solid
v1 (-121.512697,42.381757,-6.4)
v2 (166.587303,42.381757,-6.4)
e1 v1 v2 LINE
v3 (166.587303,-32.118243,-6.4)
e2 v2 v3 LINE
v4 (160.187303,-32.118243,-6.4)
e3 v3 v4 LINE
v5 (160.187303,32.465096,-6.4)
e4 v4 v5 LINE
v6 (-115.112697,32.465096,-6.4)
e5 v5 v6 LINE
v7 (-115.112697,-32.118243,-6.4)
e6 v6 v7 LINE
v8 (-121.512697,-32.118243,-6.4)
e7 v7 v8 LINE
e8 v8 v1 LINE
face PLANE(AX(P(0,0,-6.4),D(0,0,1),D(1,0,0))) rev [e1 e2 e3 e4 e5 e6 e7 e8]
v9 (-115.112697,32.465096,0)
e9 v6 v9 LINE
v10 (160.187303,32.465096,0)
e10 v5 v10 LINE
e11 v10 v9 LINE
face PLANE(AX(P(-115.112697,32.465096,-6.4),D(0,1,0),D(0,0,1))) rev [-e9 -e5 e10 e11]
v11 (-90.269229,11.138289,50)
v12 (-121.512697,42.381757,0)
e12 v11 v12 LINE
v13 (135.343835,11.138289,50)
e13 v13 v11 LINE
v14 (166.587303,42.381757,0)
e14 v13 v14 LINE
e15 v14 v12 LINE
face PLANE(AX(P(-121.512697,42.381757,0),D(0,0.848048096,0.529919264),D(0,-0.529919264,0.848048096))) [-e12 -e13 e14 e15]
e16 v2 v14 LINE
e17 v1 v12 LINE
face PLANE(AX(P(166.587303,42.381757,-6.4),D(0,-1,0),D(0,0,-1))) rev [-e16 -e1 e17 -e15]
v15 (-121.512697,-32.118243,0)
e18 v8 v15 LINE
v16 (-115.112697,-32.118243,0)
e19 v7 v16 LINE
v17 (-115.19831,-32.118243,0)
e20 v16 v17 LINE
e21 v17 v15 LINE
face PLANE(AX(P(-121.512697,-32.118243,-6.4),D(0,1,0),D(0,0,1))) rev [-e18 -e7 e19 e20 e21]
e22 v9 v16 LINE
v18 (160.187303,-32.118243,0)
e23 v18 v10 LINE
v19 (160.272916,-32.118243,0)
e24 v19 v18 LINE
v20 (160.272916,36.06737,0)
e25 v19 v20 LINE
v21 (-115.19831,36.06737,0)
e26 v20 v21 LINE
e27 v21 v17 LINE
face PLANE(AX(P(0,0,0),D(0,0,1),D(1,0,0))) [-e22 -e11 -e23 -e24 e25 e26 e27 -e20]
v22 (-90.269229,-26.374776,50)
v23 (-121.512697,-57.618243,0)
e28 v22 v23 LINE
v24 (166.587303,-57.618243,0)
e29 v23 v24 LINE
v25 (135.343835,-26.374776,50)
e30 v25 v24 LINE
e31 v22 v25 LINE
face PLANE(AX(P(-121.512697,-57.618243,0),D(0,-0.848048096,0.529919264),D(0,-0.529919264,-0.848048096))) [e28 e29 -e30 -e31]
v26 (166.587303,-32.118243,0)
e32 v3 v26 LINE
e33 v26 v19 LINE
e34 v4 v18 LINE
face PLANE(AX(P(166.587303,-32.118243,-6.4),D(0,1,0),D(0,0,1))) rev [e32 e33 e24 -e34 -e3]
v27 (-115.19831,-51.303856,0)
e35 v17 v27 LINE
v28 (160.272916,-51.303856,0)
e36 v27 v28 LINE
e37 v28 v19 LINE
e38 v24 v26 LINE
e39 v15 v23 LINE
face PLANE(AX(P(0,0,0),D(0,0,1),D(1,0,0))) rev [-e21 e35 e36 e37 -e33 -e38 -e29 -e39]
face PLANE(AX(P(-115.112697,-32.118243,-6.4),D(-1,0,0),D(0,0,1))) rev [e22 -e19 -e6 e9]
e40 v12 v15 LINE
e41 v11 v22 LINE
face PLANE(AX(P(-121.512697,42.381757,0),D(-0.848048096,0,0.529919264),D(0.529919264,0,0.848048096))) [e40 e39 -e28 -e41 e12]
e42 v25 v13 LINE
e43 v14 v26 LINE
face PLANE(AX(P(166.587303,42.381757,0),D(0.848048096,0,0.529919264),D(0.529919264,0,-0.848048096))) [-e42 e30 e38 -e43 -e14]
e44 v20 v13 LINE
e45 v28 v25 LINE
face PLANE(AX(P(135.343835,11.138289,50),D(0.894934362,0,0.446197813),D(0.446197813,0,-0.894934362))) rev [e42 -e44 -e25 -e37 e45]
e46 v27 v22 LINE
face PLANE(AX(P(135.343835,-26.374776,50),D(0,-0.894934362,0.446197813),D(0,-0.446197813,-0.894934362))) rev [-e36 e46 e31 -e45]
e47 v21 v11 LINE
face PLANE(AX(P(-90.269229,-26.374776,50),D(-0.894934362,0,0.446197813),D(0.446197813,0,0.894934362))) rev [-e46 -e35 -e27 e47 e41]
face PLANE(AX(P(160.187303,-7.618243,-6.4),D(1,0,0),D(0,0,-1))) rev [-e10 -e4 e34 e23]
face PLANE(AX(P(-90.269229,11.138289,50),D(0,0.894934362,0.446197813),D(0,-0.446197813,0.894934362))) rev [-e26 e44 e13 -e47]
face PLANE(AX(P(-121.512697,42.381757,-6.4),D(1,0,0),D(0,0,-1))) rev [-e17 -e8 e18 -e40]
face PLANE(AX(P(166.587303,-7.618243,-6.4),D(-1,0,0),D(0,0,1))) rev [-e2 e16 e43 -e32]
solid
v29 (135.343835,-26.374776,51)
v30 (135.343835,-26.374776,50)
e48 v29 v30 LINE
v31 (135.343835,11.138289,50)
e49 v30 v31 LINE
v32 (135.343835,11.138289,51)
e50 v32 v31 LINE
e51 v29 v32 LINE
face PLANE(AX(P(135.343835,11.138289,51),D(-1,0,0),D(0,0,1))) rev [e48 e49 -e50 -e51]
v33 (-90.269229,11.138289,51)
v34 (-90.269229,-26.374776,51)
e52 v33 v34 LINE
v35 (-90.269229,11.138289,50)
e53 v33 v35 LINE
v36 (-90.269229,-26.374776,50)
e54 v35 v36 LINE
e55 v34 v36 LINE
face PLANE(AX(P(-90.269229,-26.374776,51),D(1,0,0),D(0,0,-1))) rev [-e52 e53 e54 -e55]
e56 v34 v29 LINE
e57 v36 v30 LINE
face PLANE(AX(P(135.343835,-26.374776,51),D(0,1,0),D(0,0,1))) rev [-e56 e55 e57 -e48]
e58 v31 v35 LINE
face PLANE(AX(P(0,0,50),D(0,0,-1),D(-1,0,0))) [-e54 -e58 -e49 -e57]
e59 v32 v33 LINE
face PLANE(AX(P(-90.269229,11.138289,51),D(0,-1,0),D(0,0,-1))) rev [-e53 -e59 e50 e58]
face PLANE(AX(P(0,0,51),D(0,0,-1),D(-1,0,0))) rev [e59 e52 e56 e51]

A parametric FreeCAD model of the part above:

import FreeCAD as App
import Part
import Sketcher

doc = App.newDocument("Part")
body = doc.addObject("PartDesign::Body", "Body")

# Sketch on XY plane
sketch1 = body.newObject("Sketcher::SketchObject", "Sketch")
sketch1.AttachmentSupport = (doc.getObject("XY_Plane"), [""])
sketch1.MapMode = "FlatFace"
sketch1.addGeometry(Part.LineSegment(App.Vector(-121.512697, 42.381757, 0), App.Vector(-121.512697, -57.618243, 0)), False)
sketch1.addGeometry(Part.LineSegment(App.Vector(-121.512697, -57.618243, 0), App.Vector(166.587303, -57.618243, 0)), False)
sketch1.addGeometry(Part.LineSegment(App.Vector(166.587303, -57.618243, 0), App.Vector(166.587303, 42.381757, 0)), False)
sketch1.addGeometry(Part.LineSegment(App.Vector(166.587303, 42.381757, 0), App.Vector(-121.512697, 42.381757, 0)), False)
sketch1.addConstraint(Sketcher.Constraint("Coincident", 0, 2, 1, 1))
sketch1.addConstraint(Sketcher.Constraint("Coincident", 1, 2, 2, 1))
sketch1.addConstraint(Sketcher.Constraint("Coincident", 2, 2, 3, 1))
sketch1.addConstraint(Sketcher.Constraint("Coincident", 3, 2, 0, 1))
sketch1.addConstraint(Sketcher.Constraint("Vertical", 0))
sketch1.addConstraint(Sketcher.Constraint("Horizontal", 1))
sketch1.addConstraint(Sketcher.Constraint("Vertical", 2))
sketch1.addConstraint(Sketcher.Constraint("Horizontal", 3))
sketch1.addConstraint(Sketcher.Constraint("DistanceY", 0, 2, 0, 1, 100.0))
sketch1.addConstraint(Sketcher.Constraint("DistanceX", 1, 1, 1, 2, 288.1))
sketch1.addConstraint(Sketcher.Constraint("DistanceX", 0, 2, -1, 1, 121.512697))
sketch1.addConstraint(Sketcher.Constraint("DistanceY", 0, 2, -1, 1, 57.618243))
pad1 = body.newObject("PartDesign::Pad", "Pad")
pad1.Profile = sketch1
pad1.Length = 50
pad1.TaperAngle = -32

# Sketch on XY plane
sketch2 = body.newObject("Sketcher::SketchObject", "Sketch001")
sketch2.AttachmentSupport = (doc.getObject("XY_Plane"), [""])
sketch2.MapMode = "FlatFace"
sketch2.AttachmentOffset = App.Placement(App.Vector(0, 0, 50), App.Rotation())
sketch2.addGeometry(Part.LineSegment(App.Vector(-90.269229, 11.138289, 0), App.Vector(-90.269229, -26.374776, 0)), False)
sketch2.addGeometry(Part.LineSegment(App.Vector(-90.269229, -26.374776, 0), App.Vector(135.343835, -26.374776, 0)), False)
sketch2.addGeometry(Part.LineSegment(App.Vector(135.343835, -26.374776, 0), App.Vector(135.343835, 11.138289, 0)), False)
sketch2.addGeometry(Part.LineSegment(App.Vector(135.343835, 11.138289, 0), App.Vector(-90.269229, 11.138289, 0)), False)
sketch2.addConstraint(Sketcher.Constraint("Coincident", 0, 2, 1, 1))
sketch2.addConstraint(Sketcher.Constraint("Coincident", 1, 2, 2, 1))
sketch2.addConstraint(Sketcher.Constraint("Coincident", 2, 2, 3, 1))
sketch2.addConstraint(Sketcher.Constraint("Coincident", 3, 2, 0, 1))
sketch2.addConstraint(Sketcher.Constraint("Vertical", 0))
sketch2.addConstraint(Sketcher.Constraint("Horizontal", 1))
sketch2.addConstraint(Sketcher.Constraint("Vertical", 2))
sketch2.addConstraint(Sketcher.Constraint("Horizontal", 3))
sketch2.addConstraint(Sketcher.Constraint("DistanceX", 1, 1, 1, 2, 225.613065))
sketch2.addConstraint(Sketcher.Constraint("DistanceY", 0, 2, 0, 1, 37.513065))
sketch2.addConstraint(Sketcher.Constraint("DistanceX", 0, 2, -1, 1, 90.269229))
sketch2.addConstraint(Sketcher.Constraint("DistanceY", -1, 1, 2, 2, 11.138289))
pocket1 = body.newObject("PartDesign::Pocket", "Pocket")
pocket1.Profile = sketch2
pocket1.Length = 50
pocket1.TaperAngle = 26.5

# Sketch on XY plane
sketch3 = body.newObject("Sketcher::SketchObject", "Sketch002")
sketch3.AttachmentSupport = (doc.getObject("XY_Plane"), [""])
sketch3.MapMode = "FlatFace"
sketch3.addGeometry(Part.LineSegment(App.Vector(-121.512697, 42.381757, 0), App.Vector(166.587303, 42.381757, 0)), False)
sketch3.addGeometry(Part.LineSegment(App.Vector(166.587303, 42.381757, 0), App.Vector(166.587303, -32.118243, 0)), False)
sketch3.addGeometry(Part.LineSegment(App.Vector(166.587303, -32.118243, 0), App.Vector(160.187303, -32.118243, 0)), False)
sketch3.addGeometry(Part.LineSegment(App.Vector(160.187303, -32.118243, 0), App.Vector(160.187303, 32.465096, 0)), False)
sketch3.addGeometry(Part.LineSegment(App.Vector(160.187303, 32.465096, 0), App.Vector(-115.112697, 32.465096, 0)), False)
sketch3.addGeometry(Part.LineSegment(App.Vector(-115.112697, 32.465096, 0), App.Vector(-115.112697, -32.118243, 0)), False)
sketch3.addGeometry(Part.LineSegment(App.Vector(-115.112697, -32.118243, 0), App.Vector(-121.512697, -32.118243, 0)), False)
sketch3.addGeometry(Part.LineSegment(App.Vector(-121.512697, -32.118243, 0), App.Vector(-121.512697, 42.381757, 0)), False)
sketch3.addConstraint(Sketcher.Constraint("Coincident", 0, 2, 1, 1))
sketch3.addConstraint(Sketcher.Constraint("Coincident", 1, 2, 2, 1))
sketch3.addConstraint(Sketcher.Constraint("Coincident", 2, 2, 3, 1))
sketch3.addConstraint(Sketcher.Constraint("Coincident", 3, 2, 4, 1))
sketch3.addConstraint(Sketcher.Constraint("Coincident", 4, 2, 5, 1))
sketch3.addConstraint(Sketcher.Constraint("Coincident", 5, 2, 6, 1))
sketch3.addConstraint(Sketcher.Constraint("Coincident", 6, 2, 7, 1))
sketch3.addConstraint(Sketcher.Constraint("Coincident", 7, 2, 0, 1))
sketch3.addConstraint(Sketcher.Constraint("Horizontal", 0))
sketch3.addConstraint(Sketcher.Constraint("Vertical", 1))
sketch3.addConstraint(Sketcher.Constraint("Horizontal", 2))
sketch3.addConstraint(Sketcher.Constraint("Vertical", 3))
sketch3.addConstraint(Sketcher.Constraint("Horizontal", 4))
sketch3.addConstraint(Sketcher.Constraint("Vertical", 5))
sketch3.addConstraint(Sketcher.Constraint("Horizontal", 6))
sketch3.addConstraint(Sketcher.Constraint("Vertical", 7))
sketch3.addConstraint(Sketcher.Constraint("Horizontal", 2, 2, 5, 2))
sketch3.addConstraint(Sketcher.Constraint("Equal", 2, 6))
sketch3.addConstraint(Sketcher.Constraint("DistanceX", 0, 1, 0, 2, 288.1))
sketch3.addConstraint(Sketcher.Constraint("DistanceX", 2, 2, 2, 1, 6.4))
sketch3.addConstraint(Sketcher.Constraint("DistanceY", 1, 2, 1, 1, 74.5))
sketch3.addConstraint(Sketcher.Constraint("DistanceY", 3, 1, 3, 2, 64.58334))
sketch3.addConstraint(Sketcher.Constraint("DistanceX", -1, 1, 0, 2, 166.587303))
sketch3.addConstraint(Sketcher.Constraint("DistanceY", -1, 1, 0, 2, 42.381757))
pad2 = body.newObject("PartDesign::Pad", "Pad001")
pad2.Profile = sketch3
pad2.Length = 6.4
pad2.Reversed = True
body2 = doc.addObject("PartDesign::Body", "Body001")

# Sketch on XY plane
sketch4 = body2.newObject("Sketcher::SketchObject", "Sketch003")
sketch4.AttachmentSupport = (doc.getObject("XY_Plane001"), [""])
sketch4.MapMode = "FlatFace"
sketch4.AttachmentOffset = App.Placement(App.Vector(0, 0, 50), App.Rotation())
sketch4.addGeometry(Part.LineSegment(App.Vector(-90.269229, 11.138289, 0), App.Vector(-90.269229, -26.374776, 0)), False)
sketch4.addGeometry(Part.LineSegment(App.Vector(-90.269229, -26.374776, 0), App.Vector(135.343835, -26.374776, 0)), False)
sketch4.addGeometry(Part.LineSegment(App.Vector(135.343835, -26.374776, 0), App.Vector(135.343835, 11.138289, 0)), False)
sketch4.addGeometry(Part.LineSegment(App.Vector(135.343835, 11.138289, 0), App.Vector(-90.269229, 11.138289, 0)), False)
sketch4.addConstraint(Sketcher.Constraint("Coincident", 0, 2, 1, 1))
sketch4.addConstraint(Sketcher.Constraint("Coincident", 1, 2, 2, 1))
sketch4.addConstraint(Sketcher.Constraint("Coincident", 2, 2, 3, 1))
sketch4.addConstraint(Sketcher.Constraint("Coincident", 3, 2, 0, 1))
sketch4.addConstraint(Sketcher.Constraint("Vertical", 0))
sketch4.addConstraint(Sketcher.Constraint("Horizontal", 1))
sketch4.addConstraint(Sketcher.Constraint("Vertical", 2))
sketch4.addConstraint(Sketcher.Constraint("Horizontal", 3))
sketch4.addConstraint(Sketcher.Constraint("DistanceX", 1, 1, 1, 2, 225.613065))
sketch4.addConstraint(Sketcher.Constraint("DistanceY", 0, 2, 0, 1, 37.513065))
sketch4.addConstraint(Sketcher.Constraint("DistanceX", 0, 2, -1, 1, 90.269229))
sketch4.addConstraint(Sketcher.Constraint("DistanceY", -1, 1, 2, 2, 11.138289))
pad3 = body2.newObject("PartDesign::Pad", "Pad002")
pad3.Profile = sketch4
pad3.Length = 1

doc.recompute()
